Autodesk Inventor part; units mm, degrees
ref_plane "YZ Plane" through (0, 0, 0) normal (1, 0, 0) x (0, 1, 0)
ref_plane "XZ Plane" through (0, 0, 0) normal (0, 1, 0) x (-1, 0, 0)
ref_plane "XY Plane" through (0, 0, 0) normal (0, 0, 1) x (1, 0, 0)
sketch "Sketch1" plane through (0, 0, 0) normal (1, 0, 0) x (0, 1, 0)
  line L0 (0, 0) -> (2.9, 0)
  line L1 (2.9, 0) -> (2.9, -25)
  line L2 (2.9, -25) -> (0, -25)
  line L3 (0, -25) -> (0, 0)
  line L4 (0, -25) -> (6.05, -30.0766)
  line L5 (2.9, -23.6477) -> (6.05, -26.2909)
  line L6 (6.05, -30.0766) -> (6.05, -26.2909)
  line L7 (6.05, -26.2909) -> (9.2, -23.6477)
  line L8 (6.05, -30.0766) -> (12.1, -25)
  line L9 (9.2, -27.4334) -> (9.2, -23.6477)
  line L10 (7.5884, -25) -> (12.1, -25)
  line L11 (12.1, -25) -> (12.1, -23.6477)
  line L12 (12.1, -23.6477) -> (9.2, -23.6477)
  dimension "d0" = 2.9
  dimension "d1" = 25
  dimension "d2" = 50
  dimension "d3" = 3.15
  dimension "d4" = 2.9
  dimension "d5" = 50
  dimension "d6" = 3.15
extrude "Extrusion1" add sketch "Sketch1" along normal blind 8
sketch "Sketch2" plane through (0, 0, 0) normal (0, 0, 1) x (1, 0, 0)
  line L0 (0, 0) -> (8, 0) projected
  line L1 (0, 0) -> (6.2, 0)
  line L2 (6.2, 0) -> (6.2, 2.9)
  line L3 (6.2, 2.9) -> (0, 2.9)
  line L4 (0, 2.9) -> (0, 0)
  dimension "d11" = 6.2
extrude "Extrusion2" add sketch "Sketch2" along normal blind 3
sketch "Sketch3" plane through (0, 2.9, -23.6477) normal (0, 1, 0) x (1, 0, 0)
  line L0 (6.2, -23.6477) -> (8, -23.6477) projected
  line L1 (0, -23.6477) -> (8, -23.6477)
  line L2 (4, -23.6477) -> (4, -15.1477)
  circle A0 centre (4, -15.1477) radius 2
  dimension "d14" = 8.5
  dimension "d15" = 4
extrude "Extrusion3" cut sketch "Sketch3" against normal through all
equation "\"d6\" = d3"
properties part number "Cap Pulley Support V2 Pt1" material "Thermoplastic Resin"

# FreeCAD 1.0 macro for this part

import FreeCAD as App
import Part
import Sketcher
from FreeCAD import Vector
Q = App.Units.Quantity

doc = App.newDocument("Part")
body = doc.addObject("PartDesign::Body", "Body")

# Sketch on YZ plane
sketch1 = body.newObject("Sketcher::SketchObject", "Sketch")
sketch1.AttachmentSupport = (doc.getObject("YZ_Plane"), [""])
sketch1.MapMode = "FlatFace"
sketch1.addGeometry([
    Part.LineSegment(Vector(2.9, 0, 0), Vector(0, 0, 0)),  # 0
    Part.LineSegment(Vector(0, 0, 0), Vector(0, -25, 0)),  # 1
    Part.LineSegment(Vector(0, -25, 0), Vector(6.05, -30.0766, 0)),  # 2
    Part.LineSegment(Vector(6.05, -30.0766, 0), Vector(12.1, -25, 0)),  # 3
    Part.LineSegment(Vector(12.1, -25, 0), Vector(12.1, -23.6477, 0)),  # 4
    Part.LineSegment(Vector(12.1, -23.6477, 0), Vector(9.2, -23.6477, 0)),  # 5
    Part.LineSegment(Vector(9.2, -23.6477, 0), Vector(6.05, -26.2909, 0)),  # 6
    Part.LineSegment(Vector(6.05, -26.2909, 0), Vector(2.9, -23.6477, 0)),  # 7
    Part.LineSegment(Vector(2.9, -23.6477, 0), Vector(2.9, 0, 0)),  # 8
], False)
sketch1.addConstraint([
    Sketcher.Constraint("Coincident", 0, 2, 1, 1),
    Sketcher.Constraint("Coincident", 1, 2, 2, 1),
    Sketcher.Constraint("Coincident", 2, 2, 3, 1),
    Sketcher.Constraint("Coincident", 3, 2, 4, 1),
    Sketcher.Constraint("Coincident", 4, 2, 5, 1),
    Sketcher.Constraint("Coincident", 5, 2, 6, 1),
    Sketcher.Constraint("Coincident", 6, 2, 7, 1),
    Sketcher.Constraint("Coincident", 7, 2, 8, 1),
    Sketcher.Constraint("Coincident", 8, 2, 0, 1),
    Sketcher.Constraint("Horizontal", 0),
    Sketcher.Constraint("Vertical", 1),
    Sketcher.Constraint("Vertical", 4),
    Sketcher.Constraint("Horizontal", 5),
    Sketcher.Constraint("Vertical", 8),
    Sketcher.Constraint("Coincident", 0, 2, -1, 1),
    Sketcher.Constraint("Parallel", 3, 6),
    Sketcher.Constraint("Parallel", 2, 7),
    Sketcher.Constraint("Horizontal", 1, 2, 3, 2),
    Sketcher.Constraint("Horizontal", 5, 2, 7, 2),
    Sketcher.Constraint("Vertical", 2, 2, 6, 2),
    Sketcher.Constraint("Equal", 0, 5),
    Sketcher.Constraint("DistanceY", 1, 2, 1, 1, Q("25 mm")),
    Sketcher.Constraint("DistanceX", 0, 2, 0, 1, Q("2.9 mm")),
    Sketcher.Constraint("Angle", 2, Q("-40.0003 deg")),
    Sketcher.Constraint("DistanceX", 2, 2, 5, 2, Q("3.15 mm")),
    Sketcher.Constraint("DistanceY", 4, 1, 4, 2, Q("1.3523 mm")),
])
pad1 = body.newObject("PartDesign::Pad", "Pad")
pad1.Profile = sketch1
pad1.Length = 8

# Sketch on XY plane
sketch2 = body.newObject("Sketcher::SketchObject", "Sketch001")
sketch2.AttachmentSupport = (doc.getObject("XY_Plane"), [""])
sketch2.MapMode = "FlatFace"
sketch2.addGeometry([
    Part.LineSegment(Vector(0, 2.9, 0), Vector(0, 0, 0)),
    Part.LineSegment(Vector(0, 0, 0), Vector(6.2, 0, 0)),
    Part.LineSegment(Vector(6.2, 0, 0), Vector(6.2, 2.9, 0)),
    Part.LineSegment(Vector(6.2, 2.9, 0), Vector(0, 2.9, 0)),
], False)
sketch2.addConstraint([
    Sketcher.Constraint("Coincident", 0, 2, 1, 1),
    Sketcher.Constraint("Coincident", 1, 2, 2, 1),
    Sketcher.Constraint("Coincident", 2, 2, 3, 1),
    Sketcher.Constraint("Coincident", 3, 2, 0, 1),
    Sketcher.Constraint("Vertical", 0),
    Sketcher.Constraint("Horizontal", 1),
    Sketcher.Constraint("Vertical", 2),
    Sketcher.Constraint("Horizontal", 3),
    Sketcher.Constraint("Coincident", 0, 2, -1, 1),
    Sketcher.Constraint("DistanceX", 1, 1, 1, 2, Q("6.2 mm")),
    Sketcher.Constraint("DistanceY", 0, 2, 0, 1, Q("2.9 mm")),
])
pad2 = body.newObject("PartDesign::Pad", "Pad001")
pad2.Profile = sketch2
pad2.Length = 3

# Sketch on XZ plane
sketch3 = body.newObject("Sketcher::SketchObject", "Sketch002")
sketch3.AttachmentSupport = (doc.getObject("XZ_Plane"), [""])
sketch3.MapMode = "FlatFace"
sketch3.AttachmentOffset = App.Placement(Vector(0, 0, -2.9), App.Rotation())
sketch3.addGeometry(Part.Circle(Vector(4, -8.5, 0), Vector(0, 0, 1), 2), False)
sketch3.addConstraint([
    Sketcher.Constraint("Diameter", 0, Q("4 mm")),
    Sketcher.Constraint("DistanceX", -1, 1, 0, 3, Q("4 mm")),
    Sketcher.Constraint("DistanceY", 0, 3, -1, 1, Q("8.5 mm")),
])
pocket1 = body.newObject("PartDesign::Pocket", "Pocket")
pocket1.Profile = sketch3
pocket1.Type = "ThroughAll"
pocket1.Reversed = True

doc.recompute()
